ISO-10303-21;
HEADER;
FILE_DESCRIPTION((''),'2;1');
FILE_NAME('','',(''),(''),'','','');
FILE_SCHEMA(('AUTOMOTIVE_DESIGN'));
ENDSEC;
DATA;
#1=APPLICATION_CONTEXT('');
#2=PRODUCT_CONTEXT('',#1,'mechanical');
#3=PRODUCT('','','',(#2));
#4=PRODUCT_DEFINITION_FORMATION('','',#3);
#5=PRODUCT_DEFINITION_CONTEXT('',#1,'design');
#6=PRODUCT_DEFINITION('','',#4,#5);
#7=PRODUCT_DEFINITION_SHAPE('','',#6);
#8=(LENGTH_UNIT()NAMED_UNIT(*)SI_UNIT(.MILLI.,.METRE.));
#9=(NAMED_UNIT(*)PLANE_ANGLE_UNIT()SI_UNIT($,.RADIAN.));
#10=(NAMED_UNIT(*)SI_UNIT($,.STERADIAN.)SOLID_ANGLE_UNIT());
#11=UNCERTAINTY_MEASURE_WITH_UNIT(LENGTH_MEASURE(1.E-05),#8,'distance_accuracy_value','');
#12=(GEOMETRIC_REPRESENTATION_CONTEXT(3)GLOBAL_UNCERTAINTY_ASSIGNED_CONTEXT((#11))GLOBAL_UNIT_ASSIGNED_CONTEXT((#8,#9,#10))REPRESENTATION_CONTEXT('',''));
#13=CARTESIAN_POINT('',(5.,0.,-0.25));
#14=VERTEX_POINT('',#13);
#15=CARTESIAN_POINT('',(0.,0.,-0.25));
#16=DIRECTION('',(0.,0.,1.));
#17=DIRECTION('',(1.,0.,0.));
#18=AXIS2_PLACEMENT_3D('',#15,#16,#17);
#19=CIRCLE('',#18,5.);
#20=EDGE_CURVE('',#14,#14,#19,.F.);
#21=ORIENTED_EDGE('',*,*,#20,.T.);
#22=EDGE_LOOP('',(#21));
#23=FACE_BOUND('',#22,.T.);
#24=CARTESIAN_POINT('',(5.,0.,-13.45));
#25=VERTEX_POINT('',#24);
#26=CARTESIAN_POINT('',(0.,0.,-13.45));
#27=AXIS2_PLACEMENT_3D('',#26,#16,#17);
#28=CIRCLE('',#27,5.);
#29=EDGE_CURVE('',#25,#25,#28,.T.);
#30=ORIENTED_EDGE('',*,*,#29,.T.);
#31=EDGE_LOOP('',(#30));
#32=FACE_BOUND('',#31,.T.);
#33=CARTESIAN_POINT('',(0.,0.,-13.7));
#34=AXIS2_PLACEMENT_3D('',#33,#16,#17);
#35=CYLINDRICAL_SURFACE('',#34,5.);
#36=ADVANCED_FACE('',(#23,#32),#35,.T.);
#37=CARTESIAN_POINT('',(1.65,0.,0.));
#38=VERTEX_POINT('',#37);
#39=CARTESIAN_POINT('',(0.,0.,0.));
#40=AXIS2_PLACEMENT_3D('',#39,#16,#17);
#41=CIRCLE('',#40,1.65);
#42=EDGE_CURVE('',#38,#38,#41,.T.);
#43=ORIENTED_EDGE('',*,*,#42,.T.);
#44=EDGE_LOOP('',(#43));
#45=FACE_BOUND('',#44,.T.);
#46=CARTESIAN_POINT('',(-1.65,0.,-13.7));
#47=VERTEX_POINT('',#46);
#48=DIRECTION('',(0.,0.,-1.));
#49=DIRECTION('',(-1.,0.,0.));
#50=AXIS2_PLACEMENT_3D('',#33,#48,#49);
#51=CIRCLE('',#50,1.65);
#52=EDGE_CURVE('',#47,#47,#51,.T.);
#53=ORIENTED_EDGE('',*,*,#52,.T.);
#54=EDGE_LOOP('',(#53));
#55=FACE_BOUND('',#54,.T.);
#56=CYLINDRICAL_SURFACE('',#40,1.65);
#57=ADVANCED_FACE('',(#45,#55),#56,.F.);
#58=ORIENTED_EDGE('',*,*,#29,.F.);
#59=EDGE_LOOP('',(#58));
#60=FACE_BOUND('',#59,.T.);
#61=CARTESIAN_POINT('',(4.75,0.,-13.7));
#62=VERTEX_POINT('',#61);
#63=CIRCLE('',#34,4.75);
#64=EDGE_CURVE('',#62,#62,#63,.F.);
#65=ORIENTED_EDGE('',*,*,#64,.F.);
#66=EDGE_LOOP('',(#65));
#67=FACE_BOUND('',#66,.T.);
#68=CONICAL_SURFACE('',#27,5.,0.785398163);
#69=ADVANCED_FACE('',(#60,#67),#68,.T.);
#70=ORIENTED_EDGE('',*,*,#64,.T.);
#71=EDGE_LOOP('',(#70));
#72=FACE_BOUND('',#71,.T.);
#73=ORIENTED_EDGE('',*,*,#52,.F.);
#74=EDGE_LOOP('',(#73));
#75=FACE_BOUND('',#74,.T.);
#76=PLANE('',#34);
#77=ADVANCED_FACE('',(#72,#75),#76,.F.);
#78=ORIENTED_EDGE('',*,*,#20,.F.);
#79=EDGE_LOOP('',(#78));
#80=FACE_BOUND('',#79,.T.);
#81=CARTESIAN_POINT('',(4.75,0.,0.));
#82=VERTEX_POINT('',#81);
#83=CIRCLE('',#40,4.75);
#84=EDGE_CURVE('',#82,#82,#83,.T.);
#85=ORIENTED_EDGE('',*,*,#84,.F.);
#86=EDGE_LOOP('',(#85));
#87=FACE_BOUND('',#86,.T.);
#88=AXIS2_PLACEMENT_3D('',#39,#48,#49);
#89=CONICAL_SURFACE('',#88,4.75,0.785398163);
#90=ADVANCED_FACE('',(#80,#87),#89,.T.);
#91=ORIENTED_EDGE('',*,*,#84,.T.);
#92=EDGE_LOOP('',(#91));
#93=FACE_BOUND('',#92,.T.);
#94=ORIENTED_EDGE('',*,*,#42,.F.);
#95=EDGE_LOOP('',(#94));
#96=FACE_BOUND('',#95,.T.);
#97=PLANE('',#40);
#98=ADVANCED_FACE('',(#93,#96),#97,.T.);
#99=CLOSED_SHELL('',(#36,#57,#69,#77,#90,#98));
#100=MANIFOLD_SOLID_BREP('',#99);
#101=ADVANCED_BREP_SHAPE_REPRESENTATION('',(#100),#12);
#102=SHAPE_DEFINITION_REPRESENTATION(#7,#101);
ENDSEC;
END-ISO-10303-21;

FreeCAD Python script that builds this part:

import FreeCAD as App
import Part
import Sketcher
Q = App.Units.Quantity


def edges_at(feature, points):
    """Names of the edges that pass closest to the given points."""
    edges = feature.Shape.Edges
    near = lambda p: min(range(len(edges)), key=lambda i: edges[i].distToShape(Part.Vertex(*p))[0])
    return sorted({f"Edge{near(p) + 1}" for p in points})

doc = App.newDocument("Part")
body = doc.addObject("PartDesign::Body", "Body")

# Sketch on XY plane
sketch1 = body.newObject("Sketcher::SketchObject", "Sketch")
sketch1.AttachmentSupport = (doc.getObject("XY_Plane"), [""])
sketch1.MapMode = "FlatFace"
sketch1.addGeometry(Part.Circle(App.Vector(0, 0, 0), App.Vector(0, 0, 1), 5), False)
sketch1.addConstraint([
    Sketcher.Constraint("Coincident", 0, 3, -1, 1),
    Sketcher.Constraint("Diameter", 0, Q("10 mm")),
])
pad1 = body.newObject("PartDesign::Pad", "Pad")
pad1.Profile = sketch1
pad1.Length = 13.7
pad1.Reversed = True

# Sketch on XY plane
sketch2 = body.newObject("Sketcher::SketchObject", "Sketch001")
sketch2.AttachmentSupport = (doc.getObject("XY_Plane"), [""])
sketch2.MapMode = "FlatFace"
sketch2.addGeometry(Part.Circle(App.Vector(0, 0, 0), App.Vector(0, 0, 1), 1.65), False)
sketch2.addConstraint([
    Sketcher.Constraint("Coincident", 0, 3, -1, 1),
    Sketcher.Constraint("Diameter", 0, Q("3.3 mm")),
])
doc.recompute()
hole = body.newObject("PartDesign::Hole", "Hole")
hole.Profile = sketch2
hole.ThreadType = "None"
hole.Diameter = 3.3
hole.DepthType = "Dimension"
hole.Depth = 10
hole.DrillPoint = "Angled"
hole.DrillPointAngle = 118

# Sketch on XY plane
sketch3 = body.newObject("Sketcher::SketchObject", "Sketch002")
sketch3.AttachmentSupport = (doc.getObject("XY_Plane"), [""])
sketch3.MapMode = "FlatFace"
sketch3.AttachmentOffset = App.Placement(App.Vector(0, 0, -13.7), App.Rotation())
sketch3.addGeometry(Part.Circle(App.Vector(0, 0, 0), App.Vector(0, 0, 1), 1.65), False)
sketch3.addConstraint([
    Sketcher.Constraint("Coincident", 0, 3, -1, 1),
    Sketcher.Constraint("Diameter", 0, Q("3.3 mm")),
])
doc.recompute()
hole2 = body.newObject("PartDesign::Hole", "Hole001")
hole2.Profile = sketch3
hole2.ThreadType = "None"
hole2.Diameter = 3.3
hole2.DepthType = "Dimension"
hole2.Depth = 10
hole2.DrillPoint = "Angled"
hole2.DrillPointAngle = 118
hole2.Reversed = True
doc.recompute()

chamfer = body.newObject("PartDesign::Chamfer", "Chamfer")
chamfer.Base = (hole2, edges_at(hole2, [(-5, 0, 0), (-5, 0, -13.7)]))
chamfer.Size = 0.25

doc.recompute()
